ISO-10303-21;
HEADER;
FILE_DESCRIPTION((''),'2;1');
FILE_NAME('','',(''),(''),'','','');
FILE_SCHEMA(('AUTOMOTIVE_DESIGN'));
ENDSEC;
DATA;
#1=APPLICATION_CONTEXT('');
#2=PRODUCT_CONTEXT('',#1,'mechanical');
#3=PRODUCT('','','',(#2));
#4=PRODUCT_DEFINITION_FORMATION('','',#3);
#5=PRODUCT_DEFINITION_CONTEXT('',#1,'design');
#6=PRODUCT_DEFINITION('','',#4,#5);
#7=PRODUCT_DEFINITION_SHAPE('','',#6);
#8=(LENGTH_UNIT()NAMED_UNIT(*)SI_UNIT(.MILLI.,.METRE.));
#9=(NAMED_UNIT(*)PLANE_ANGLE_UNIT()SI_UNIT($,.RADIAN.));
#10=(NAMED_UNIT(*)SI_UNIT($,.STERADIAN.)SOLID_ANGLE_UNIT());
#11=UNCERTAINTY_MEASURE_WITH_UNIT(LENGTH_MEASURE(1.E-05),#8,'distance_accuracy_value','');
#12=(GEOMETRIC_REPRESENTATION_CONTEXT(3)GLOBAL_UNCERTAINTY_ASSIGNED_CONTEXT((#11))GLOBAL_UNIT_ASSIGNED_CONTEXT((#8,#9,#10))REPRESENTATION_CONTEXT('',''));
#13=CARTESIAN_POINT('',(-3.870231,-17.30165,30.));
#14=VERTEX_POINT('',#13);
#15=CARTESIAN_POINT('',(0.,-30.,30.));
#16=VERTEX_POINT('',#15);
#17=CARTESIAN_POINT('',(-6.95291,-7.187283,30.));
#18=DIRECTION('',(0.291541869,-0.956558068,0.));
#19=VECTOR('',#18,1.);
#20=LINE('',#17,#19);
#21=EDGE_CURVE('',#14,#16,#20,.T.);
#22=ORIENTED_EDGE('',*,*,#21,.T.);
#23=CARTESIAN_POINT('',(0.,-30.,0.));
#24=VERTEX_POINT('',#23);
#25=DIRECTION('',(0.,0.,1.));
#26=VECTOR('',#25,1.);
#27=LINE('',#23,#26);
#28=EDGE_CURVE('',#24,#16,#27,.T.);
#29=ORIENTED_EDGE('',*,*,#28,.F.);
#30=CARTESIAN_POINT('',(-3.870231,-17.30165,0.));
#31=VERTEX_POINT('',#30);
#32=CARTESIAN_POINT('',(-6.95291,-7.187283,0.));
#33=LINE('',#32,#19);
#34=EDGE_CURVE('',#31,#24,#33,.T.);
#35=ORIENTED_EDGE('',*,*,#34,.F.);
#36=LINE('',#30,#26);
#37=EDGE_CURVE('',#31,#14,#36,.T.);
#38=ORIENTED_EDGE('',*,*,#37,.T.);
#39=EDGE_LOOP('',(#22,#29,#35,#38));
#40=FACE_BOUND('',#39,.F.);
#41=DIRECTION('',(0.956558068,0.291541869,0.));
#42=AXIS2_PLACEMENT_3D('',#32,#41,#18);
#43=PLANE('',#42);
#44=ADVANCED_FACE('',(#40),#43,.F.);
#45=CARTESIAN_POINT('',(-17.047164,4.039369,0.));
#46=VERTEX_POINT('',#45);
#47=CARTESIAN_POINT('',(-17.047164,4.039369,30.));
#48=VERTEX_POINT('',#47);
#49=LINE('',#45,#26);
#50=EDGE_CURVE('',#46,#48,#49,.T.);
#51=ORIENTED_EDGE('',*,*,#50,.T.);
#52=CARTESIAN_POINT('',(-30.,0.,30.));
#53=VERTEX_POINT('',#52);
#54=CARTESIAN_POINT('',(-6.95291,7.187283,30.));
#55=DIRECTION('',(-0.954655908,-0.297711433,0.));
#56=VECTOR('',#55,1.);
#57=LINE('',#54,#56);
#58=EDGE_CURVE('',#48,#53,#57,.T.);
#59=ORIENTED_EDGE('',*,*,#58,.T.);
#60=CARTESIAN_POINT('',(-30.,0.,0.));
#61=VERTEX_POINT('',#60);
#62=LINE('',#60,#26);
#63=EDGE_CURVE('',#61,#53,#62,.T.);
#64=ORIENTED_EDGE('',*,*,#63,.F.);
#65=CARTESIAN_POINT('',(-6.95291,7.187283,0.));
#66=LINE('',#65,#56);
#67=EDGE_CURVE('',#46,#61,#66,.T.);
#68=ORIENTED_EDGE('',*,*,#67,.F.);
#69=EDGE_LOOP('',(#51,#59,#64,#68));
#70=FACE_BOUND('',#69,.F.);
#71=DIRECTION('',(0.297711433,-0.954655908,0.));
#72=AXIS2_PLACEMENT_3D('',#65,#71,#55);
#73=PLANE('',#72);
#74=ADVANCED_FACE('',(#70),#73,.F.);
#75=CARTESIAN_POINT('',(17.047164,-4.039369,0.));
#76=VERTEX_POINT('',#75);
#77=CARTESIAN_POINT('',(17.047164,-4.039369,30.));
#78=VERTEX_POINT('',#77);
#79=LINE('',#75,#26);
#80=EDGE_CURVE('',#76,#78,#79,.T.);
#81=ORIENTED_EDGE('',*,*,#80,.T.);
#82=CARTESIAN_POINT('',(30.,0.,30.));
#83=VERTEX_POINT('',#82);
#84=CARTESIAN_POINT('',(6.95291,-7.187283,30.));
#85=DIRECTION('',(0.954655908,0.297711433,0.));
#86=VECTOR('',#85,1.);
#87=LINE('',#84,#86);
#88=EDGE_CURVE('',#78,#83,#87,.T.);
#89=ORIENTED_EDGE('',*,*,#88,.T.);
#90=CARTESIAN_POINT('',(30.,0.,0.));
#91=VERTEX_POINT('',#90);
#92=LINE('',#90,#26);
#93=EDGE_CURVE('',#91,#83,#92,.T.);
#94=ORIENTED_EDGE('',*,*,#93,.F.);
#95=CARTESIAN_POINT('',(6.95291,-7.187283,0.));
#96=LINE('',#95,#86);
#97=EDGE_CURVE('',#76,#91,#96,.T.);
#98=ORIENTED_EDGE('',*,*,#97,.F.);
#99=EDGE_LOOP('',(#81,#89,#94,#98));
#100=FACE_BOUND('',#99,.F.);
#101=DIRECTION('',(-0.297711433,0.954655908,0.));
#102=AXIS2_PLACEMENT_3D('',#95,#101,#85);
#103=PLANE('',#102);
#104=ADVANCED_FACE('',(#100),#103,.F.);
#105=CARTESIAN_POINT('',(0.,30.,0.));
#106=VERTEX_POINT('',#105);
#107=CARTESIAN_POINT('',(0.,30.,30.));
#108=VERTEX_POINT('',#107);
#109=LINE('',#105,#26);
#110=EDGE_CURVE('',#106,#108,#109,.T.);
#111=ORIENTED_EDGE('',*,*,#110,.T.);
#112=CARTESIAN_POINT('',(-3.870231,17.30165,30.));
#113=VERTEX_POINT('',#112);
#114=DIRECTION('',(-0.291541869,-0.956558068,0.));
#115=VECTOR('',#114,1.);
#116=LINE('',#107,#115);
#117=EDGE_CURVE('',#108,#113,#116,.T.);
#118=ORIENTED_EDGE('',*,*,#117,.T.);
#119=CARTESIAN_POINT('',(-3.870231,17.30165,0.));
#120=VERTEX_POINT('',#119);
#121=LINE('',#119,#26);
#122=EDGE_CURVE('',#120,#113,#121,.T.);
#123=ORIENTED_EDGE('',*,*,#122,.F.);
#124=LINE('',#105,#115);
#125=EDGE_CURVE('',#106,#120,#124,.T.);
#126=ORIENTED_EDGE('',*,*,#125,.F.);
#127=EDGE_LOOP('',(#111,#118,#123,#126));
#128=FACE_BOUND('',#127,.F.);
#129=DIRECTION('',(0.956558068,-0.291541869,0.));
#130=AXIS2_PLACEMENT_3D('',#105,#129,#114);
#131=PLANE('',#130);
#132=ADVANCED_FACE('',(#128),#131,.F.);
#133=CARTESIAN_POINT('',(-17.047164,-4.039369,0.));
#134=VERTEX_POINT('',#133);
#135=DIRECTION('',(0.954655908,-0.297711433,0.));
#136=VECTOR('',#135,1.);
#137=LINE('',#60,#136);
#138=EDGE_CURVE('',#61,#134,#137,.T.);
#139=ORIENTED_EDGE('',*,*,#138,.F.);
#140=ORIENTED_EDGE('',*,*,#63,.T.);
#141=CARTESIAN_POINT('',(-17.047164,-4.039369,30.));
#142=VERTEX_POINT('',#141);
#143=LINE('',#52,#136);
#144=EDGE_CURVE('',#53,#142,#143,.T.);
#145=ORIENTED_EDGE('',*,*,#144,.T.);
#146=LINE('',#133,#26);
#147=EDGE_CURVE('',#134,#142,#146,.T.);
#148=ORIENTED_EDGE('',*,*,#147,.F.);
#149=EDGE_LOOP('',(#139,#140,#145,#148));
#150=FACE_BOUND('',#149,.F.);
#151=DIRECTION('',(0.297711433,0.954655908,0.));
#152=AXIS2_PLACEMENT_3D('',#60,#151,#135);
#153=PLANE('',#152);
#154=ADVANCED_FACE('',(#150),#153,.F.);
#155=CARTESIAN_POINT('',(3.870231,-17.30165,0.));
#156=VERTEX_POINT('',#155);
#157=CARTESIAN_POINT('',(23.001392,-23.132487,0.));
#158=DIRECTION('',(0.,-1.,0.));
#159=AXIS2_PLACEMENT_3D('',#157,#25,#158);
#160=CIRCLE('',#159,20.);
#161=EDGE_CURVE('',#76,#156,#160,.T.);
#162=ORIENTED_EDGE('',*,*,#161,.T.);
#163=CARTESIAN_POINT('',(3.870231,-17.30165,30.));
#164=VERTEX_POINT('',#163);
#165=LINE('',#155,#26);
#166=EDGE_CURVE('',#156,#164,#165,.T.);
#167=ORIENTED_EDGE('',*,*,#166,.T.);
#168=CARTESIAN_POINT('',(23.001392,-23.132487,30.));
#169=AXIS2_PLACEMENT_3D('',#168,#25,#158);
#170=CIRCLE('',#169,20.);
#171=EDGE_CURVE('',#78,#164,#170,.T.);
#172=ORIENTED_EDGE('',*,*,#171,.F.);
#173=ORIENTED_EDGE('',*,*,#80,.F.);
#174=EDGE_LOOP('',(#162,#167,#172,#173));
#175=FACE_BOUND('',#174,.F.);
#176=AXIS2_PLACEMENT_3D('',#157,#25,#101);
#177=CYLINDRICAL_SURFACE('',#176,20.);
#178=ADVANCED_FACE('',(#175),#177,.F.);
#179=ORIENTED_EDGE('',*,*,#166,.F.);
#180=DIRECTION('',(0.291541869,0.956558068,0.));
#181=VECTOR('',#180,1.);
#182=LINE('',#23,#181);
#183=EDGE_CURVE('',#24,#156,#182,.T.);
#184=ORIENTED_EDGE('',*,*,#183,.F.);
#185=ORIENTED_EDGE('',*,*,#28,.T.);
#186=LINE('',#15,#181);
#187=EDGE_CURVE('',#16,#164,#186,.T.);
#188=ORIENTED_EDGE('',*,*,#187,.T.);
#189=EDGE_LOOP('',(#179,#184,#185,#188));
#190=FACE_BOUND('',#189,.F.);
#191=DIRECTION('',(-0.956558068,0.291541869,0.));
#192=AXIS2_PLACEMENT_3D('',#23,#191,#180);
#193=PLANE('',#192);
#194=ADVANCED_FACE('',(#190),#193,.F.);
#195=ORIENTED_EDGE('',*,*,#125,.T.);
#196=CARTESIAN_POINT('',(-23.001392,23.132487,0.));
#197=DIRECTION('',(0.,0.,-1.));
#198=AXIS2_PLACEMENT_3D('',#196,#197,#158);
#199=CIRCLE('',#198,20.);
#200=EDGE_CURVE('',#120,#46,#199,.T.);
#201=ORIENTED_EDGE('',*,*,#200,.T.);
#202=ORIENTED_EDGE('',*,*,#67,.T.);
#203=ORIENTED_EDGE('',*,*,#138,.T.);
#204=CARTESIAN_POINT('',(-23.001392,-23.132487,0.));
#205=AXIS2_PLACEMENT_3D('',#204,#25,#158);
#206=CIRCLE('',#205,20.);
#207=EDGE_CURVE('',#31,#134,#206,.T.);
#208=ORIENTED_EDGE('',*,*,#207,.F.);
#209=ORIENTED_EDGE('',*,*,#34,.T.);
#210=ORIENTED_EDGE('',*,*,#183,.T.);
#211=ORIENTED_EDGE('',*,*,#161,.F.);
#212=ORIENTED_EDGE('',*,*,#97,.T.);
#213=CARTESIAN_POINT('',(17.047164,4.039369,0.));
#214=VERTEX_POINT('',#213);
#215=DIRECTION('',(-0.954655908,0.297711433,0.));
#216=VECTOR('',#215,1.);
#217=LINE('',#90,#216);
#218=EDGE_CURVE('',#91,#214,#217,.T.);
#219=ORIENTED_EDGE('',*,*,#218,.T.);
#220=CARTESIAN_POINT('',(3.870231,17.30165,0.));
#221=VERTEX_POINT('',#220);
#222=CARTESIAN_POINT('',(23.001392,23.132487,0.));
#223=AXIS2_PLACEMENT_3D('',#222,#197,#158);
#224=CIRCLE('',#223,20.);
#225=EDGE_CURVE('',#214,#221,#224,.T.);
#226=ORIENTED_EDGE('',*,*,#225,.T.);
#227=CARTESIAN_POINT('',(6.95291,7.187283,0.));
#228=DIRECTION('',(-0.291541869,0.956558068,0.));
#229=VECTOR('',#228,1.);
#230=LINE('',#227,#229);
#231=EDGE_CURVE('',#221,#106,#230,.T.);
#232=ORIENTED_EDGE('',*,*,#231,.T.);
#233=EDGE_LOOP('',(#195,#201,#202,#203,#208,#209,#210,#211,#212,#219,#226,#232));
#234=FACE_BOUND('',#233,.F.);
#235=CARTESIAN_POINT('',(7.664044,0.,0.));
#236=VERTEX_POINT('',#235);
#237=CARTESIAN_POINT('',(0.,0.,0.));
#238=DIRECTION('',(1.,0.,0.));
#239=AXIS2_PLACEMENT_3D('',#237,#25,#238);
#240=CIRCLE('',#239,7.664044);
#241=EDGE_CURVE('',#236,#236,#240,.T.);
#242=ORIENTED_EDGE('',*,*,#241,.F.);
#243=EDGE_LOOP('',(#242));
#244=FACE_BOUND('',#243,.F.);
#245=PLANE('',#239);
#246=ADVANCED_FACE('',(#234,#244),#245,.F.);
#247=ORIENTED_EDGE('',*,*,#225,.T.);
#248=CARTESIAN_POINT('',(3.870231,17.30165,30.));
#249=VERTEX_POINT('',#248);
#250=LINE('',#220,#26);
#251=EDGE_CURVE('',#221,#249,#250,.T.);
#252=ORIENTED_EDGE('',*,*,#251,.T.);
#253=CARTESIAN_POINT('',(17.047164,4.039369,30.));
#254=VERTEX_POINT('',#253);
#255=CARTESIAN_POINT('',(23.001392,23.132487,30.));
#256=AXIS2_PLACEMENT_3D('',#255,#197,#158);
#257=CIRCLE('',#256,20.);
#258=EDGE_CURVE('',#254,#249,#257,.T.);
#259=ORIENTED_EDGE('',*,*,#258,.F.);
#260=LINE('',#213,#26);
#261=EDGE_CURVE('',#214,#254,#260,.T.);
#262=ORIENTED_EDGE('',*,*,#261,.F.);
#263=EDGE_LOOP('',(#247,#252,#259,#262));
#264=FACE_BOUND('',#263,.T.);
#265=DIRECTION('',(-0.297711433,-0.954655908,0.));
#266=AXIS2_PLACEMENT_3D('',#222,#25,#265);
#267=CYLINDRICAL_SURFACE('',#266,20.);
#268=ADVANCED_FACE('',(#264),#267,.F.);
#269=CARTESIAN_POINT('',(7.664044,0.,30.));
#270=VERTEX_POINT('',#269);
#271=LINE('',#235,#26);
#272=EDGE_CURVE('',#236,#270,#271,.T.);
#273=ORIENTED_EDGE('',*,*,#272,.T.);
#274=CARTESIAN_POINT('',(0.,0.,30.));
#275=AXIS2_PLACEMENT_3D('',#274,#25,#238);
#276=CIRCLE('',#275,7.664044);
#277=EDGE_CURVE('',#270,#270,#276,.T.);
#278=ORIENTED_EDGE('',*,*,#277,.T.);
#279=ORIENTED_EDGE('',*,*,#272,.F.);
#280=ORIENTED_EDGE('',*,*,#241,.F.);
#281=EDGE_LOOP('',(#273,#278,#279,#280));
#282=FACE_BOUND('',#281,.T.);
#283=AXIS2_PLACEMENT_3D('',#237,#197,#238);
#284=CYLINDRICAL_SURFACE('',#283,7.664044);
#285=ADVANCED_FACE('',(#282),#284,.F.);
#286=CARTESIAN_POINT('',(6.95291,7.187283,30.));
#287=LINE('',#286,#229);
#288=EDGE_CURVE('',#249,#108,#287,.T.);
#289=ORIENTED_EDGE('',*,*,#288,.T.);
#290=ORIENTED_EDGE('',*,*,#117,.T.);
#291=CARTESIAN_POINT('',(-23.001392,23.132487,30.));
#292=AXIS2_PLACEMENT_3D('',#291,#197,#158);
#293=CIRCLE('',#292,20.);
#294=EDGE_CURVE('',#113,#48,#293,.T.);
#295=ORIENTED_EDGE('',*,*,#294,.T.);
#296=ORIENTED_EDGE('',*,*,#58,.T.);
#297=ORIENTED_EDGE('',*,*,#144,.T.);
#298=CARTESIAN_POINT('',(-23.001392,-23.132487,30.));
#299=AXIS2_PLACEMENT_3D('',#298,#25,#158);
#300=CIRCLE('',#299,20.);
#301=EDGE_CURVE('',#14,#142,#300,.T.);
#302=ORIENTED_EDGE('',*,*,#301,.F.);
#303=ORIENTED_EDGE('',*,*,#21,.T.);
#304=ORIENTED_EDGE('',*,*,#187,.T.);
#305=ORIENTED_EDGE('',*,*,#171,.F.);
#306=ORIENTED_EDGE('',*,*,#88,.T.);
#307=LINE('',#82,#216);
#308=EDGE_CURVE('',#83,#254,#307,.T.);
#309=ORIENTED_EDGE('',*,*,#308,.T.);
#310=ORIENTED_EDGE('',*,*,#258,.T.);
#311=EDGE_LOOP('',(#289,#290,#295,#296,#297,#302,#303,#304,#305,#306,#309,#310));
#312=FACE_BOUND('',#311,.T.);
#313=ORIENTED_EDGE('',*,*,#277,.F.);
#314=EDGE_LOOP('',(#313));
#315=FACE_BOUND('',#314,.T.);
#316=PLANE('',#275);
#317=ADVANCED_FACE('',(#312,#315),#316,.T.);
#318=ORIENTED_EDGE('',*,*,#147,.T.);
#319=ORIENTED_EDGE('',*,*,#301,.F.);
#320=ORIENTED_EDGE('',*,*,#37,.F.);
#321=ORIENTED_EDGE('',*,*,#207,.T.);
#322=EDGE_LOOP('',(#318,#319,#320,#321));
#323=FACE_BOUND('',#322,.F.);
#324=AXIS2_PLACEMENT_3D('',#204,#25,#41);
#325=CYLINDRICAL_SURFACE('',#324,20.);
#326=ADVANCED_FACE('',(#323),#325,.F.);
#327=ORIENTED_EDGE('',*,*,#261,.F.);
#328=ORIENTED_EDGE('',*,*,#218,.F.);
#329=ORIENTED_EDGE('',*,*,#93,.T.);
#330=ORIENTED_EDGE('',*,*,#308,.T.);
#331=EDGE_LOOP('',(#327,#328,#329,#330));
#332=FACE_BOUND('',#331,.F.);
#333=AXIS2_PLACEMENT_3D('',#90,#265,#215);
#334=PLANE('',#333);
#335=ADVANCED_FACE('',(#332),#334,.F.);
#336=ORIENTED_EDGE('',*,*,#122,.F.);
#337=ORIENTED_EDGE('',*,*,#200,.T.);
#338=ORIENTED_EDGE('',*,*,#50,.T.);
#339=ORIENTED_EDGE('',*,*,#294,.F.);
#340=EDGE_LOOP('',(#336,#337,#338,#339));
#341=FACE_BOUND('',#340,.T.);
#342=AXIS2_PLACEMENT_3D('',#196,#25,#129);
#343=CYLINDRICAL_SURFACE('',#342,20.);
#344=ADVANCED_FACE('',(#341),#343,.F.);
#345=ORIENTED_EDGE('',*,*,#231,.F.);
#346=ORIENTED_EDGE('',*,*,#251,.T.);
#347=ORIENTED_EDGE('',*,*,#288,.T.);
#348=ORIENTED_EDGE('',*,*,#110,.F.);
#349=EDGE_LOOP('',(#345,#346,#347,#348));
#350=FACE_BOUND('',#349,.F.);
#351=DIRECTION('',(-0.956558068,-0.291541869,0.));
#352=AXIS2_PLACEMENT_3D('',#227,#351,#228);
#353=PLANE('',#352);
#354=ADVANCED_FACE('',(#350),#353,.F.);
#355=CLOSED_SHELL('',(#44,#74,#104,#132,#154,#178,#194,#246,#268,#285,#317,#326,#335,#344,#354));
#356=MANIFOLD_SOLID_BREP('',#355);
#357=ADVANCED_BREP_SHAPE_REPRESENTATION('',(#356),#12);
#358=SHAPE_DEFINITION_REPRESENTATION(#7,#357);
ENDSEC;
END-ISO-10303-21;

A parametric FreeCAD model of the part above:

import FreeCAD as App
import Part
import Sketcher
from FreeCAD import Vector
Q = App.Units.Quantity


def edges_at(feature, points):
    """Names of the edges that pass closest to the given points."""
    edges = feature.Shape.Edges
    near = lambda p: min(range(len(edges)), key=lambda i: edges[i].distToShape(Part.Vertex(*p))[0])
    return sorted({f"Edge{near(p) + 1}" for p in points})


def add_polygon(sketch, points):
    """Adds a closed chain of lines whose ends are joined by coincident constraints."""
    first, n = sketch.GeometryCount, len(points)
    for a, b in zip(points, points[1:] + points[:1]):
        sketch.addGeometry(Part.LineSegment(App.Vector(*a, 0), App.Vector(*b, 0)), False)
    for i in range(n):
        sketch.addConstraint(Sketcher.Constraint("Coincident", first + i, 2, first + (i + 1) % n, 1))

doc = App.newDocument("Part")
body = doc.addObject("PartDesign::Body", "Body")

# Sketch on XY plane
sketch1 = doc.addObject("Sketcher::SketchObject", "Sketch")
body.addObject(sketch1)
sketch1.AttachmentSupport = (doc.XY_Plane, [""])
sketch1.MapMode = "FlatFace"
add_polygon(sketch1, [(30, 0), (6.95291, 7.187283), (0, 30), (-6.95291, 7.187283), (-30, 0), (-6.95291, -7.187283), (0, -30), (6.95291, -7.187283)])  # lines 0-7
sketch1.addGeometry(Part.Circle(Vector(0, 0, 0), Vector(0, 0, 1), 7.664044), False)  # 8
sketch1.addConstraint(Sketcher.Constraint("Coincident", 8, 3, -1, 1))
sketch1.addConstraint(Sketcher.Constraint("Symmetric", 0, 2, 4, 2, -1, 1))
sketch1.addConstraint(Sketcher.Constraint("Symmetric", 1, 2, 5, 2, -1, 1))
sketch1.addConstraint(Sketcher.Constraint("Symmetric", 2, 2, 6, 2, -1, 1))
sketch1.addConstraint(Sketcher.Constraint("Symmetric", 3, 2, 7, 2, -1, 1))
sketch1.addConstraint(Sketcher.Constraint("Symmetric", 0, 2, 2, 2, -2))
sketch1.addConstraint(Sketcher.Constraint("PointOnObject", 1, 2, -2))
sketch1.addConstraint(Sketcher.Constraint("PointOnObject", 3, 2, -1))
sketch1.addConstraint(Sketcher.Constraint("DistanceY", -1, 1, 1, 2, Q("30 mm")))
sketch1.addConstraint(Sketcher.Constraint("DistanceX", 3, 2, -1, 1, Q("30 mm")))
sketch1.addConstraint(Sketcher.Constraint("Diameter", 8, Q("15.328088 mm")))
sketch1.addConstraint(Sketcher.Constraint("DistanceX", -1, 1, 0, 2, Q("6.95291 mm")))
sketch1.addConstraint(Sketcher.Constraint("Distance", 0, Q("24.141777 mm")))
pad1 = doc.addObject("PartDesign::Pad", "Pad")
body.addObject(pad1)
pad1.Profile = sketch1
pad1.Length = 30
doc.recompute()

fillet = doc.addObject("PartDesign::Fillet", "Fillet")
body.addObject(fillet)
fillet.Base = (pad1, edges_at(pad1, [
    (-6.953, -7.187, 15),
    (6.953, -7.187, 15),
    (6.953, 7.187, 15),
    (-6.953, 7.187, 15),
]))
fillet.Radius = 20

doc.recompute()
